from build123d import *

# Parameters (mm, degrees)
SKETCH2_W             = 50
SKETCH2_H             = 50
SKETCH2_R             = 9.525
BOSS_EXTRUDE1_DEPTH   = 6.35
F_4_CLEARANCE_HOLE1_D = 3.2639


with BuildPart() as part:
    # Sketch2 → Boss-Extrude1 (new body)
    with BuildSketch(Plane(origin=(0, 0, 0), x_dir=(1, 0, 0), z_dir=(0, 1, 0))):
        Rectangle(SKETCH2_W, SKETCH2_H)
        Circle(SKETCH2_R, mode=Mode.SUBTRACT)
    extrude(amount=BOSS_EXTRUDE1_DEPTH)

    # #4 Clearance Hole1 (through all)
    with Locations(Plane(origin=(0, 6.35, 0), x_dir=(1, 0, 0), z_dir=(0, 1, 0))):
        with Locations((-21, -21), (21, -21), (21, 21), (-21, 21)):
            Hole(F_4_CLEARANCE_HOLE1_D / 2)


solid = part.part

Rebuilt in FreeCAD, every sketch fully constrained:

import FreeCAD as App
import Part
import Sketcher
Q = App.Units.Quantity

doc = App.newDocument("Part")
body = doc.addObject("PartDesign::Body", "Body")

# Sketch on XZ plane
sketch1 = body.newObject("Sketcher::SketchObject", "Sketch")
sketch1.AttachmentSupport = (doc.getObject("XZ_Plane"), [""])
sketch1.MapMode = "FlatFace"
sketch1.addGeometry(Part.LineSegment(App.Vector(-25, -25, 0), App.Vector(-25, 25, 0)), False)
sketch1.addGeometry(Part.LineSegment(App.Vector(-25, 25, 0), App.Vector(25, 25, 0)), False)
sketch1.addGeometry(Part.LineSegment(App.Vector(25, 25, 0), App.Vector(25, -25, 0)), False)
sketch1.addGeometry(Part.LineSegment(App.Vector(25, -25, 0), App.Vector(-25, -25, 0)), False)
sketch1.addGeometry(Part.Circle(App.Vector(0, 0, 0), App.Vector(0, 0, 1), 10), False)
sketch1.addConstraint(Sketcher.Constraint("Coincident", 0, 2, 1, 1))
sketch1.addConstraint(Sketcher.Constraint("Coincident", 1, 2, 2, 1))
sketch1.addConstraint(Sketcher.Constraint("Coincident", 2, 2, 3, 1))
sketch1.addConstraint(Sketcher.Constraint("Coincident", 3, 2, 0, 1))
sketch1.addConstraint(Sketcher.Constraint("Vertical", 0))
sketch1.addConstraint(Sketcher.Constraint("Horizontal", 1))
sketch1.addConstraint(Sketcher.Constraint("Vertical", 2))
sketch1.addConstraint(Sketcher.Constraint("Horizontal", 3))
sketch1.addConstraint(Sketcher.Constraint("Coincident", 4, 3, -1, 1))
sketch1.addConstraint(Sketcher.Constraint("Symmetric", 0, 2, 2, 2, -1, 1))
sketch1.addConstraint(Sketcher.Constraint("Equal", 3, 0))
sketch1.addConstraint(Sketcher.Constraint("Diameter", 4, Q("0.75 in")))
sketch1.addConstraint(Sketcher.Constraint("DistanceX", 1, 1, 1, 2, 50.0))
pad1 = body.newObject("PartDesign::Pad", "Pad")
pad1.Profile = sketch1
pad1.Length = Q("0.25 in")
pad1.Reversed = True

# Sketch on XZ plane
sketch2 = body.newObject("Sketcher::SketchObject", "Sketch001")
sketch2.AttachmentSupport = (doc.getObject("XZ_Plane"), [""])
sketch2.MapMode = "FlatFace"
sketch2.AttachmentOffset = App.Placement(App.Vector(0, 0, -0.25 * 25.4), App.Rotation())
sketch2.addGeometry(Part.Circle(App.Vector(-21, 21, 0), App.Vector(0, 0, 1), 1.6), False)
sketch2.addGeometry(Part.Circle(App.Vector(21, 21, 0), App.Vector(0, 0, 1), 1.6), False)
sketch2.addGeometry(Part.Circle(App.Vector(21, -21, 0), App.Vector(0, 0, 1), 1.6), False)
sketch2.addGeometry(Part.Circle(App.Vector(-21, -21, 0), App.Vector(0, 0, 1), 1.6), False)
sketch2.addConstraint(Sketcher.Constraint("Equal", 0, 1))
sketch2.addConstraint(Sketcher.Constraint("Equal", 1, 2))
sketch2.addConstraint(Sketcher.Constraint("Equal", 2, 3))
sketch2.addConstraint(Sketcher.Constraint("Symmetric", 0, 3, 2, 3, -1, 1))
sketch2.addConstraint(Sketcher.Constraint("Symmetric", 1, 3, 3, 3, -1, 1))
sketch2.addConstraint(Sketcher.Constraint("Symmetric", 0, 3, 1, 3, -2))
sketch2.addConstraint(Sketcher.Constraint("Diameter", 0, Q("0.1285 in")))
sketch2.addConstraint(Sketcher.Constraint("DistanceX", 0, 3, -1, 1, 21.0))
sketch2.addConstraint(Sketcher.Constraint("DistanceY", -1, 1, 0, 3, 21.0))
doc.recompute()
hole = body.newObject("PartDesign::Hole", "Hole")
hole.Profile = sketch2
hole.ThreadType = "None"
hole.Diameter = Q("0.1285 in")
hole.DepthType = "ThroughAll"
hole.Reversed = True

doc.recompute()
